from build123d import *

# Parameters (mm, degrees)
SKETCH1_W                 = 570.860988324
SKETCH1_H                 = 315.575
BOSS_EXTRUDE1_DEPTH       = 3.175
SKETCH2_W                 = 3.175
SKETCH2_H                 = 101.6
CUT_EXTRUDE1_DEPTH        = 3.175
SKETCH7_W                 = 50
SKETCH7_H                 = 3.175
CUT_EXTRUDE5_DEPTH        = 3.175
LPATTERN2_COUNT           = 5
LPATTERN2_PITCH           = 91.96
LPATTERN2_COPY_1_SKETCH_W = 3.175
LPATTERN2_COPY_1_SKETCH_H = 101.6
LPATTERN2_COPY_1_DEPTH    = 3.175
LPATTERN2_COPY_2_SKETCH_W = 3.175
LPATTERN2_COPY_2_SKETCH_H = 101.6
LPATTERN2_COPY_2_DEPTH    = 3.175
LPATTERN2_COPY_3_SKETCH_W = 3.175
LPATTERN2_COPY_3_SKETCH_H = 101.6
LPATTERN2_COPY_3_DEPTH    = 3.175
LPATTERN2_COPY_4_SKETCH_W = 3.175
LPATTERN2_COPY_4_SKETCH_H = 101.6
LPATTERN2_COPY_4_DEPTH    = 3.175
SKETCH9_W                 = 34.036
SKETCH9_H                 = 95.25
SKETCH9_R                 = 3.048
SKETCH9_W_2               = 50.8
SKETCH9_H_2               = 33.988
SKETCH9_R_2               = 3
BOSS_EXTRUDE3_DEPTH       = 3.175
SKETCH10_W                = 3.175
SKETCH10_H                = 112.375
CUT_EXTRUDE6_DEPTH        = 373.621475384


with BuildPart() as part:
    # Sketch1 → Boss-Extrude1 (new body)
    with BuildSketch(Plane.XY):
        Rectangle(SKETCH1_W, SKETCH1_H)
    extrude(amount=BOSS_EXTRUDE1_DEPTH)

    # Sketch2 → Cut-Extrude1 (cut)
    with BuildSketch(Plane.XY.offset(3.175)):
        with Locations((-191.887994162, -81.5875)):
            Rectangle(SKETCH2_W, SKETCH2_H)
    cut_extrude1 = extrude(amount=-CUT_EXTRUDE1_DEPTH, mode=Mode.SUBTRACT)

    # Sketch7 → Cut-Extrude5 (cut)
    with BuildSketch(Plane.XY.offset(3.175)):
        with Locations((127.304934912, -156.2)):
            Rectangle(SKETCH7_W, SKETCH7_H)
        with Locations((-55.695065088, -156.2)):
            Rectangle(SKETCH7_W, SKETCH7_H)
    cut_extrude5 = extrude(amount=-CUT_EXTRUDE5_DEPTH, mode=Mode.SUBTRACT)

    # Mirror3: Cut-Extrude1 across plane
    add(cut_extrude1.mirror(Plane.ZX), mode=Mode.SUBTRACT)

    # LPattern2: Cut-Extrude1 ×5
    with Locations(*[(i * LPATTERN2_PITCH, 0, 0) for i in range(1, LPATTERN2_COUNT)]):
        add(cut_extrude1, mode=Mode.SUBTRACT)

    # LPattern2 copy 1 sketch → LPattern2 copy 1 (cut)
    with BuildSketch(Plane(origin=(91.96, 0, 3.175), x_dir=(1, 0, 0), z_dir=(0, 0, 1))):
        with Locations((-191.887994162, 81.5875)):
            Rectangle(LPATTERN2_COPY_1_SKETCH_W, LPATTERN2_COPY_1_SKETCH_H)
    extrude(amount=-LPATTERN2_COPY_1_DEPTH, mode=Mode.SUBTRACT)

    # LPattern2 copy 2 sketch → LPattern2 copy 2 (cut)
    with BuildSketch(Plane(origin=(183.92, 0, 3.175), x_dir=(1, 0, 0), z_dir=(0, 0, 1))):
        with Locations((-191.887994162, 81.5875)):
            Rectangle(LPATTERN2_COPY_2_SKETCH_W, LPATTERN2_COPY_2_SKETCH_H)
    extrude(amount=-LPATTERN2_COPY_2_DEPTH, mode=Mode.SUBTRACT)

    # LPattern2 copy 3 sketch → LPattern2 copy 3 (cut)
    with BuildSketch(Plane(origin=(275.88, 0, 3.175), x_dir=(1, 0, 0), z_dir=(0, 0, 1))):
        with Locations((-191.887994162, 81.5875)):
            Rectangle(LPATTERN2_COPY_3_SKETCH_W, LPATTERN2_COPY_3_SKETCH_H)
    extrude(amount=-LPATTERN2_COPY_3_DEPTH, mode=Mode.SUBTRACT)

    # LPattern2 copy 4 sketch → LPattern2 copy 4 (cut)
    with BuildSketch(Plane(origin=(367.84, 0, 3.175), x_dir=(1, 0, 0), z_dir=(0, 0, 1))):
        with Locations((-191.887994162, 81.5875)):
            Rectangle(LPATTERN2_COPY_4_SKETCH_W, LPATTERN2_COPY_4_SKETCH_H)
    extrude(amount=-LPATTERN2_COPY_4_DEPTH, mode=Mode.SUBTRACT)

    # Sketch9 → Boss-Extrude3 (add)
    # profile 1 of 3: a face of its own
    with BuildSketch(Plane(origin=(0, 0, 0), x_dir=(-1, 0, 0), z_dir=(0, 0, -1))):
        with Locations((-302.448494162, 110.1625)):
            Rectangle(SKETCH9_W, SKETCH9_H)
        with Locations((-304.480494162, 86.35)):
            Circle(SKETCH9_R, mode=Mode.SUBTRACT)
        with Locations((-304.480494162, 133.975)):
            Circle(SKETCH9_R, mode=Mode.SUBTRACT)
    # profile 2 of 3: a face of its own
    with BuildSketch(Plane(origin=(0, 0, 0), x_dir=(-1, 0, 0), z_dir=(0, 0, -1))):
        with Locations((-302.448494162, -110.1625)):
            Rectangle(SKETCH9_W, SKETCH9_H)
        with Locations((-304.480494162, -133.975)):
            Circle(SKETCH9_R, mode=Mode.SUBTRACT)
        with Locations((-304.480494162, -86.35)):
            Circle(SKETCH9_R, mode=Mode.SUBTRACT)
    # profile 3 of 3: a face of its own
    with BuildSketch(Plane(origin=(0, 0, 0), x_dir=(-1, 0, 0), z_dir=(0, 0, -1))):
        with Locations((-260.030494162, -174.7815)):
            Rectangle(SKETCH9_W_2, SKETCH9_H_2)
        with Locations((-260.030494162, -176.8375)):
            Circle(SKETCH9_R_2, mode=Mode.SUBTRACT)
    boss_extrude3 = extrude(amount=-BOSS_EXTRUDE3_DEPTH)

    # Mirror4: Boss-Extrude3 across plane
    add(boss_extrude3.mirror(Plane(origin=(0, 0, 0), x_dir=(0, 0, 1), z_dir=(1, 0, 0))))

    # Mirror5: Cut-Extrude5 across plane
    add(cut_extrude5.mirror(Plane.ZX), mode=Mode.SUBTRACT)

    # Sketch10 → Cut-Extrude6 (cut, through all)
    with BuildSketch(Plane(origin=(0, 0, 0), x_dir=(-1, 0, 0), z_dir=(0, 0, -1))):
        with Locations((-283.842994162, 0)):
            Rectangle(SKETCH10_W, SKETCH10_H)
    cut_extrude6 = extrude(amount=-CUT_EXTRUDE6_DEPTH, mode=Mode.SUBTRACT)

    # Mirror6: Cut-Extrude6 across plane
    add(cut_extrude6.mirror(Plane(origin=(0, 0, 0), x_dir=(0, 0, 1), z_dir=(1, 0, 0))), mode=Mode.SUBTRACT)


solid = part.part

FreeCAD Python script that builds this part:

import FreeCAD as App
import Part
import Sketcher
Q = App.Units.Quantity

doc = App.newDocument("Part")
body = doc.addObject("PartDesign::Body", "Body")

# Sketch on XY plane
sketch1 = doc.addObject("Sketcher::SketchObject", "Sketch")
body.addObject(sketch1)
sketch1.AttachmentSupport = (doc.XY_Plane, [""])
sketch1.MapMode = "FlatFace"
sketch1.addGeometry([
    Part.LineSegment(App.Vector(-285, 158, 0), App.Vector(-285, -158, 0)),
    Part.LineSegment(App.Vector(-285, -158, 0), App.Vector(285, -158, 0)),
    Part.LineSegment(App.Vector(285, -158, 0), App.Vector(285, 158, 0)),
    Part.LineSegment(App.Vector(285, 158, 0), App.Vector(-285, 158, 0)),
], False)
sketch1.addConstraint([
    Sketcher.Constraint("Coincident", 0, 2, 1, 1),
    Sketcher.Constraint("Coincident", 1, 2, 2, 1),
    Sketcher.Constraint("Coincident", 2, 2, 3, 1),
    Sketcher.Constraint("Coincident", 3, 2, 0, 1),
    Sketcher.Constraint("Vertical", 0),
    Sketcher.Constraint("Horizontal", 1),
    Sketcher.Constraint("Vertical", 2),
    Sketcher.Constraint("Horizontal", 3),
    Sketcher.Constraint("Symmetric", 0, 2, 2, 2, -1, 1),
    Sketcher.Constraint("DistanceY", 0, 2, 0, 1, Q("315.575 mm")),
    Sketcher.Constraint("DistanceX", 1, 1, 1, 2, Q("570.860988 mm")),
])
pad1 = doc.addObject("PartDesign::Pad", "Pad")
body.addObject(pad1)
pad1.Profile = sketch1
pad1.Length = Q("0.125 in")

# Sketch on XY plane
sketch2 = doc.addObject("Sketcher::SketchObject", "Sketch001")
body.addObject(sketch2)
sketch2.AttachmentSupport = (doc.XY_Plane, [""])
sketch2.MapMode = "FlatFace"
sketch2.AttachmentOffset = App.Placement(App.Vector(0, 0, 0.125 * 25.4), App.Rotation())
sketch2.addGeometry([
    Part.LineSegment(App.Vector(-193.5, -30.8, 0), App.Vector(-193.5, -132.4, 0)),
    Part.LineSegment(App.Vector(-193.5, -132.4, 0), App.Vector(-190.3, -132.4, 0)),
    Part.LineSegment(App.Vector(-190.3, -132.4, 0), App.Vector(-190.3, -30.8, 0)),
    Part.LineSegment(App.Vector(-190.3, -30.8, 0), App.Vector(-193.5, -30.8, 0)),
], False)
sketch2.addConstraint([
    Sketcher.Constraint("Coincident", 0, 2, 1, 1),
    Sketcher.Constraint("Coincident", 1, 2, 2, 1),
    Sketcher.Constraint("Coincident", 2, 2, 3, 1),
    Sketcher.Constraint("Coincident", 3, 2, 0, 1),
    Sketcher.Constraint("Vertical", 0),
    Sketcher.Constraint("Horizontal", 1),
    Sketcher.Constraint("Vertical", 2),
    Sketcher.Constraint("Horizontal", 3),
    Sketcher.Constraint("DistanceY", 0, 2, 0, 1, Q("4 in")),
    Sketcher.Constraint("DistanceX", 1, 1, 1, 2, Q("0.125 in")),
    Sketcher.Constraint("DistanceY", 0, 2, -1, 1, Q("132.3875 mm")),
    Sketcher.Constraint("DistanceX", 0, 2, -1, 1, Q("193.475494 mm")),
])
pocket1 = doc.addObject("PartDesign::Pocket", "Pocket")
body.addObject(pocket1)
pocket1.Profile = sketch2
pocket1.Length = Q("0.125 in")

# Sketch on XY plane
sketch3 = doc.addObject("Sketcher::SketchObject", "Sketch002")
body.addObject(sketch3)
sketch3.AttachmentSupport = (doc.XY_Plane, [""])
sketch3.MapMode = "FlatFace"
sketch3.AttachmentOffset = App.Placement(App.Vector(0, 0, 0.125 * 25.4), App.Rotation())
sketch3.addGeometry([
    Part.LineSegment(App.Vector(102.3, -154.6, 0), App.Vector(102.3, -157.8, 0)),  # 0
    Part.LineSegment(App.Vector(102.3, -157.8, 0), App.Vector(152.3, -157.8, 0)),  # 1
    Part.LineSegment(App.Vector(152.3, -157.8, 0), App.Vector(152.3, -154.6, 0)),  # 2
    Part.LineSegment(App.Vector(152.3, -154.6, 0), App.Vector(102.3, -154.6, 0)),  # 3
    Part.LineSegment(App.Vector(-80.7, -154.6, 0), App.Vector(-80.7, -157.8, 0)),  # 4
    Part.LineSegment(App.Vector(-80.7, -157.8, 0), App.Vector(-30.7, -157.8, 0)),  # 5
    Part.LineSegment(App.Vector(-30.7, -157.8, 0), App.Vector(-30.7, -154.6, 0)),  # 6
    Part.LineSegment(App.Vector(-30.7, -154.6, 0), App.Vector(-80.7, -154.6, 0)),  # 7
], False)
sketch3.addConstraint([
    Sketcher.Constraint("Coincident", 0, 2, 1, 1),
    Sketcher.Constraint("Coincident", 1, 2, 2, 1),
    Sketcher.Constraint("Coincident", 2, 2, 3, 1),
    Sketcher.Constraint("Coincident", 3, 2, 0, 1),
    Sketcher.Constraint("Coincident", 4, 2, 5, 1),
    Sketcher.Constraint("Coincident", 5, 2, 6, 1),
    Sketcher.Constraint("Coincident", 6, 2, 7, 1),
    Sketcher.Constraint("Coincident", 7, 2, 4, 1),
    Sketcher.Constraint("Vertical", 0),
    Sketcher.Constraint("Horizontal", 1),
    Sketcher.Constraint("Vertical", 2),
    Sketcher.Constraint("Horizontal", 3),
    Sketcher.Constraint("Vertical", 4),
    Sketcher.Constraint("Horizontal", 5),
    Sketcher.Constraint("Vertical", 6),
    Sketcher.Constraint("Horizontal", 7),
    Sketcher.Constraint("Horizontal", 1, 2, 4, 2),
    Sketcher.Constraint("Horizontal", 3, 2, 6, 2),
    Sketcher.Constraint("Equal", 3, 5),
    Sketcher.Constraint("DistanceY", 0, 2, 0, 1, Q("0.125 in")),
    Sketcher.Constraint("DistanceX", 1, 1, 1, 2, Q("50 mm")),
    Sketcher.Constraint("DistanceY", 0, 2, -1, 1, Q("157.7875 mm")),
    Sketcher.Constraint("DistanceX", 4, 2, 0, 2, Q("183 mm")),
    Sketcher.Constraint("DistanceX", -1, 1, 0, 2, Q("102.304935 mm")),
])
pocket2 = doc.addObject("PartDesign::Pocket", "Pocket001")
body.addObject(pocket2)
pocket2.Profile = sketch3
pocket2.Length = Q("0.125 in")
doc.recompute()

mirrored = doc.addObject("PartDesign::Mirrored", "Mirrored")
body.addObject(mirrored)
mirrored.Originals = [pocket1]
mirrored.MirrorPlane = (doc.XZ_Plane, [""])
body.Tip = mirrored
doc.recompute()

linearpattern = doc.addObject("PartDesign::LinearPattern", "LinearPattern")
body.addObject(linearpattern)
linearpattern.Originals = [pocket1]
linearpattern.Direction = (doc.X_Axis, [""])
linearpattern.Mode = "offset"
linearpattern.Offset = 91.96
linearpattern.Occurrences = 5
body.Tip = linearpattern

# Sketch on XY plane
sketch4 = doc.addObject("Sketcher::SketchObject", "Sketch003")
body.addObject(sketch4)
sketch4.AttachmentSupport = (doc.XY_Plane, [""])
sketch4.MapMode = "FlatFace"
sketch4.AttachmentOffset = App.Placement(App.Vector(0, 0, 0.125 * 25.4), App.Rotation())
sketch4.addGeometry([
    Part.LineSegment(App.Vector(-101.5, 132.4, 0), App.Vector(-101.5, 30.8, 0)),
    Part.LineSegment(App.Vector(-101.5, 30.8, 0), App.Vector(-98.3, 30.8, 0)),
    Part.LineSegment(App.Vector(-98.3, 30.8, 0), App.Vector(-98.3, 132.4, 0)),
    Part.LineSegment(App.Vector(-98.3, 132.4, 0), App.Vector(-101.5, 132.4, 0)),
], False)
sketch4.addConstraint([
    Sketcher.Constraint("Coincident", 0, 2, 1, 1),
    Sketcher.Constraint("Coincident", 1, 2, 2, 1),
    Sketcher.Constraint("Coincident", 2, 2, 3, 1),
    Sketcher.Constraint("Coincident", 3, 2, 0, 1),
    Sketcher.Constraint("Vertical", 0),
    Sketcher.Constraint("Horizontal", 1),
    Sketcher.Constraint("Vertical", 2),
    Sketcher.Constraint("Horizontal", 3),
    Sketcher.Constraint("DistanceY", 0, 2, 0, 1, Q("4 in")),
    Sketcher.Constraint("DistanceX", 1, 1, 1, 2, Q("0.125 in")),
    Sketcher.Constraint("DistanceY", -1, 1, 0, 2, Q("30.7875 mm")),
    Sketcher.Constraint("DistanceX", 0, 2, -1, 1, Q("101.515494 mm")),
])
pocket3 = doc.addObject("PartDesign::Pocket", "Pocket002")
body.addObject(pocket3)
pocket3.Profile = sketch4
pocket3.Length = Q("0.125 in")

# Sketch on XY plane
sketch5 = doc.addObject("Sketcher::SketchObject", "Sketch004")
body.addObject(sketch5)
sketch5.AttachmentSupport = (doc.XY_Plane, [""])
sketch5.MapMode = "FlatFace"
sketch5.AttachmentOffset = App.Placement(App.Vector(0, 0, 0.125 * 25.4), App.Rotation())
sketch5.addGeometry([
    Part.LineSegment(App.Vector(-9.6, 132.4, 0), App.Vector(-9.6, 30.8, 0)),
    Part.LineSegment(App.Vector(-9.6, 30.8, 0), App.Vector(-6.4, 30.8, 0)),
    Part.LineSegment(App.Vector(-6.4, 30.8, 0), App.Vector(-6.4, 132.4, 0)),
    Part.LineSegment(App.Vector(-6.4, 132.4, 0), App.Vector(-9.6, 132.4, 0)),
], False)
sketch5.addConstraint([
    Sketcher.Constraint("Coincident", 0, 2, 1, 1),
    Sketcher.Constraint("Coincident", 1, 2, 2, 1),
    Sketcher.Constraint("Coincident", 2, 2, 3, 1),
    Sketcher.Constraint("Coincident", 3, 2, 0, 1),
    Sketcher.Constraint("Vertical", 0),
    Sketcher.Constraint("Horizontal", 1),
    Sketcher.Constraint("Vertical", 2),
    Sketcher.Constraint("Horizontal", 3),
    Sketcher.Constraint("DistanceY", 0, 2, 0, 1, Q("4 in")),
    Sketcher.Constraint("DistanceX", 1, 1, 1, 2, Q("0.125 in")),
    Sketcher.Constraint("DistanceY", -1, 1, 0, 2, Q("30.7875 mm")),
    Sketcher.Constraint("DistanceX", 0, 2, -1, 1, Q("9.555494 mm")),
])
pocket4 = doc.addObject("PartDesign::Pocket", "Pocket003")
body.addObject(pocket4)
pocket4.Profile = sketch5
pocket4.Length = Q("0.125 in")

# Sketch on XY plane
sketch6 = doc.addObject("Sketcher::SketchObject", "Sketch005")
body.addObject(sketch6)
sketch6.AttachmentSupport = (doc.XY_Plane, [""])
sketch6.MapMode = "FlatFace"
sketch6.AttachmentOffset = App.Placement(App.Vector(0, 0, 0.125 * 25.4), App.Rotation())
sketch6.addGeometry([
    Part.LineSegment(App.Vector(82.4, 132.4, 0), App.Vector(82.4, 30.8, 0)),
    Part.LineSegment(App.Vector(82.4, 30.8, 0), App.Vector(85.6, 30.8, 0)),
    Part.LineSegment(App.Vector(85.6, 30.8, 0), App.Vector(85.6, 132.4, 0)),
    Part.LineSegment(App.Vector(85.6, 132.4, 0), App.Vector(82.4, 132.4, 0)),
], False)
sketch6.addConstraint([
    Sketcher.Constraint("Coincident", 0, 2, 1, 1),
    Sketcher.Constraint("Coincident", 1, 2, 2, 1),
    Sketcher.Constraint("Coincident", 2, 2, 3, 1),
    Sketcher.Constraint("Coincident", 3, 2, 0, 1),
    Sketcher.Constraint("Vertical", 0),
    Sketcher.Constraint("Horizontal", 1),
    Sketcher.Constraint("Vertical", 2),
    Sketcher.Constraint("Horizontal", 3),
    Sketcher.Constraint("DistanceY", 0, 2, 0, 1, Q("4 in")),
    Sketcher.Constraint("DistanceX", 1, 1, 1, 2, Q("0.125 in")),
    Sketcher.Constraint("DistanceY", -1, 1, 0, 2, Q("30.7875 mm")),
    Sketcher.Constraint("DistanceX", -1, 1, 0, 2, Q("82.404506 mm")),
])
pocket5 = doc.addObject("PartDesign::Pocket", "Pocket004")
body.addObject(pocket5)
pocket5.Profile = sketch6
pocket5.Length = Q("0.125 in")

# Sketch on XY plane
sketch7 = doc.addObject("Sketcher::SketchObject", "Sketch006")
body.addObject(sketch7)
sketch7.AttachmentSupport = (doc.XY_Plane, [""])
sketch7.MapMode = "FlatFace"
sketch7.AttachmentOffset = App.Placement(App.Vector(0, 0, 0.125 * 25.4), App.Rotation())
sketch7.addGeometry([
    Part.LineSegment(App.Vector(174.4, 132.4, 0), App.Vector(174.4, 30.8, 0)),
    Part.LineSegment(App.Vector(174.4, 30.8, 0), App.Vector(177.5, 30.8, 0)),
    Part.LineSegment(App.Vector(177.5, 30.8, 0), App.Vector(177.5, 132.4, 0)),
    Part.LineSegment(App.Vector(177.5, 132.4, 0), App.Vector(174.4, 132.4, 0)),
], False)
sketch7.addConstraint([
    Sketcher.Constraint("Coincident", 0, 2, 1, 1),
    Sketcher.Constraint("Coincident", 1, 2, 2, 1),
    Sketcher.Constraint("Coincident", 2, 2, 3, 1),
    Sketcher.Constraint("Coincident", 3, 2, 0, 1),
    Sketcher.Constraint("Vertical", 0),
    Sketcher.Constraint("Horizontal", 1),
    Sketcher.Constraint("Vertical", 2),
    Sketcher.Constraint("Horizontal", 3),
    Sketcher.Constraint("DistanceY", 0, 2, 0, 1, Q("4 in")),
    Sketcher.Constraint("DistanceX", 1, 1, 1, 2, Q("0.125 in")),
    Sketcher.Constraint("DistanceY", -1, 1, 0, 2, Q("30.7875 mm")),
    Sketcher.Constraint("DistanceX", -1, 1, 0, 2, Q("174.364506 mm")),
])
pocket6 = doc.addObject("PartDesign::Pocket", "Pocket005")
body.addObject(pocket6)
pocket6.Profile = sketch7
pocket6.Length = Q("0.125 in")

# Sketch on XY plane
sketch8 = doc.addObject("Sketcher::SketchObject", "Sketch007")
body.addObject(sketch8)
sketch8.AttachmentSupport = (doc.XY_Plane, [""])
sketch8.MapMode = "FlatFace"
sketch8.addGeometry([
    Part.LineSegment(App.Vector(319.5, 157.8, 0), App.Vector(319.5, 62.5, 0)),  # 0
    Part.LineSegment(App.Vector(319.5, 62.5, 0), App.Vector(285.4, 62.5, 0)),  # 1
    Part.LineSegment(App.Vector(285.4, 62.5, 0), App.Vector(285.4, 157.8, 0)),  # 2
    Part.LineSegment(App.Vector(285.4, 157.8, 0), App.Vector(319.5, 157.8, 0)),  # 3
    Part.Circle(App.Vector(304.5, 86.3, 0), App.Vector(0, 0, 1), 3),  # 4
    Part.Circle(App.Vector(304.5, 134, 0), App.Vector(0, 0, 1), 3),  # 5
    Part.LineSegment(App.Vector(319.5, -62.5, 0), App.Vector(319.5, -157.8, 0)),  # 6
    Part.LineSegment(App.Vector(319.5, -157.8, 0), App.Vector(285.4, -157.8, 0)),  # 7
    Part.LineSegment(App.Vector(285.4, -157.8, 0), App.Vector(285.4, -62.5, 0)),  # 8
    Part.LineSegment(App.Vector(285.4, -62.5, 0), App.Vector(319.5, -62.5, 0)),  # 9
    Part.Circle(App.Vector(304.5, -134, 0), App.Vector(0, 0, 1), 3),  # 10
    Part.Circle(App.Vector(304.5, -86.3, 0), App.Vector(0, 0, 1), 3),  # 11
    Part.LineSegment(App.Vector(285.4, -157.8, 0), App.Vector(285.4, -191.8, 0)),  # 12
    Part.LineSegment(App.Vector(285.4, -191.8, 0), App.Vector(234.6, -191.8, 0)),  # 13
    Part.LineSegment(App.Vector(234.6, -191.8, 0), App.Vector(234.6, -157.8, 0)),  # 14
    Part.LineSegment(App.Vector(234.6, -157.8, 0), App.Vector(285.4, -157.8, 0)),  # 15
    Part.Circle(App.Vector(260, -176.8, 0), App.Vector(0, 0, 1), 3),  # 16
], False)
sketch8.addConstraint([
    Sketcher.Constraint("Coincident", 0, 2, 1, 1),
    Sketcher.Constraint("Coincident", 1, 2, 2, 1),
    Sketcher.Constraint("Coincident", 2, 2, 3, 1),
    Sketcher.Constraint("Coincident", 3, 2, 0, 1),
    Sketcher.Constraint("Coincident", 6, 2, 7, 1),
    Sketcher.Constraint("Coincident", 7, 2, 8, 1),
    Sketcher.Constraint("Coincident", 8, 2, 9, 1),
    Sketcher.Constraint("Coincident", 9, 2, 6, 1),
    Sketcher.Constraint("Coincident", 12, 2, 13, 1),
    Sketcher.Constraint("Coincident", 13, 2, 14, 1),
    Sketcher.Constraint("Coincident", 14, 2, 15, 1),
    Sketcher.Constraint("Coincident", 15, 2, 12, 1),
    Sketcher.Constraint("Vertical", 0),
    Sketcher.Constraint("Horizontal", 1),
    Sketcher.Constraint("Vertical", 2),
    Sketcher.Constraint("Horizontal", 3),
    Sketcher.Constraint("Vertical", 6),
    Sketcher.Constraint("Horizontal", 7),
    Sketcher.Constraint("Vertical", 8),
    Sketcher.Constraint("Horizontal", 9),
    Sketcher.Constraint("Vertical", 12),
    Sketcher.Constraint("Horizontal", 13),
    Sketcher.Constraint("Vertical", 14),
    Sketcher.Constraint("Horizontal", 15),
    Sketcher.Constraint("Coincident", 15, 2, 7, 2),
    Sketcher.Constraint("Equal", 4, 5),
    Sketcher.Constraint("Equal", 5, 10),
    Sketcher.Constraint("Equal", 10, 11),
    Sketcher.Constraint("Symmetric", 5, 3, 10, 3, -1),
    Sketcher.Constraint("Symmetric", 4, 3, 11, 3, -1),
    Sketcher.Constraint("Symmetric", 3, 2, 6, 2, -1),
    Sketcher.Constraint("Symmetric", 1, 2, 8, 2, -1),
    Sketcher.Constraint("Vertical", 4, 3, 5, 3),
    Sketcher.Constraint("Diameter", 4, Q("0.24 in")),
    Sketcher.Constraint("DistanceX", 13, 2, 13, 1, Q("2 in")),
    Sketcher.Constraint("DistanceX", 16, 3, 7, 2, Q("1 in")),
    Sketcher.Constraint("DistanceX", 1, 2, 1, 1, Q("1.34 in")),
    Sketcher.Constraint("DistanceY", 0, 2, 0, 1, Q("3.75 in")),
    Sketcher.Constraint("DistanceY", 16, 3, 8, 2, Q("4.5 in")),
    Sketcher.Constraint("Diameter", 16, Q("6 mm")),
    Sketcher.Constraint("DistanceX", 16, 3, 10, 3, Q("1.75 in")),
    Sketcher.Constraint("DistanceY", 4, 3, 5, 3, Q("1.875 in")),
    Sketcher.Constraint("DistanceY", 16, 3, 10, 3, Q("1.6875 in")),
    Sketcher.Constraint("DistanceY", 12, 2, 12, 1, Q("33.988 mm")),
    Sketcher.Constraint("DistanceY", -1, 1, 4, 3, Q("86.35 mm")),
    Sketcher.Constraint("DistanceX", -1, 1, 4, 3, Q("304.480494 mm")),
])
pad2 = doc.addObject("PartDesign::Pad", "Pad001")
body.addObject(pad2)
pad2.Profile = sketch8
pad2.Length = Q("0.125 in")
doc.recompute()

mirrored2 = doc.addObject("PartDesign::Mirrored", "Mirrored001")
body.addObject(mirrored2)
mirrored2.Originals = [pad2]
mirrored2.MirrorPlane = (doc.YZ_Plane, [""])
body.Tip = mirrored2
doc.recompute()

mirrored3 = doc.addObject("PartDesign::Mirrored", "Mirrored002")
body.addObject(mirrored3)
mirrored3.Originals = [pocket2]
mirrored3.MirrorPlane = (doc.XZ_Plane, [""])
body.Tip = mirrored3

# Sketch on XY plane
sketch9 = doc.addObject("Sketcher::SketchObject", "Sketch008")
body.addObject(sketch9)
sketch9.AttachmentSupport = (doc.XY_Plane, [""])
sketch9.MapMode = "FlatFace"
sketch9.addGeometry([
    Part.LineSegment(App.Vector(285.4, 56.2, 0), App.Vector(285.4, -56.2, 0)),
    Part.LineSegment(App.Vector(285.4, -56.2, 0), App.Vector(282.3, -56.2, 0)),
    Part.LineSegment(App.Vector(282.3, -56.2, 0), App.Vector(282.3, 56.2, 0)),
    Part.LineSegment(App.Vector(282.3, 56.2, 0), App.Vector(285.4, 56.2, 0)),
], False)
sketch9.addConstraint([
    Sketcher.Constraint("Coincident", 0, 2, 1, 1),
    Sketcher.Constraint("Coincident", 1, 2, 2, 1),
    Sketcher.Constraint("Coincident", 2, 2, 3, 1),
    Sketcher.Constraint("Coincident", 3, 2, 0, 1),
    Sketcher.Constraint("Vertical", 0),
    Sketcher.Constraint("Horizontal", 1),
    Sketcher.Constraint("Vertical", 2),
    Sketcher.Constraint("Horizontal", 3),
    Sketcher.Constraint("DistanceX", 1, 2, 1, 1, Q("0.125 in")),
    Sketcher.Constraint("DistanceY", 0, 2, 0, 1, Q("112.375 mm")),
    Sketcher.Constraint("DistanceY", 0, 2, -1, 1, Q("56.1875 mm")),
    Sketcher.Constraint("DistanceX", -1, 1, 0, 2, Q("285.430494 mm")),
])
pocket7 = doc.addObject("PartDesign::Pocket", "Pocket006")
body.addObject(pocket7)
pocket7.Profile = sketch9
pocket7.Type = "ThroughAll"
pocket7.Reversed = True
doc.recompute()

mirrored4 = doc.addObject("PartDesign::Mirrored", "Mirrored003")
body.addObject(mirrored4)
mirrored4.Originals = [pocket7]
mirrored4.MirrorPlane = (doc.YZ_Plane, [""])
body.Tip = mirrored4

doc.recompute()
